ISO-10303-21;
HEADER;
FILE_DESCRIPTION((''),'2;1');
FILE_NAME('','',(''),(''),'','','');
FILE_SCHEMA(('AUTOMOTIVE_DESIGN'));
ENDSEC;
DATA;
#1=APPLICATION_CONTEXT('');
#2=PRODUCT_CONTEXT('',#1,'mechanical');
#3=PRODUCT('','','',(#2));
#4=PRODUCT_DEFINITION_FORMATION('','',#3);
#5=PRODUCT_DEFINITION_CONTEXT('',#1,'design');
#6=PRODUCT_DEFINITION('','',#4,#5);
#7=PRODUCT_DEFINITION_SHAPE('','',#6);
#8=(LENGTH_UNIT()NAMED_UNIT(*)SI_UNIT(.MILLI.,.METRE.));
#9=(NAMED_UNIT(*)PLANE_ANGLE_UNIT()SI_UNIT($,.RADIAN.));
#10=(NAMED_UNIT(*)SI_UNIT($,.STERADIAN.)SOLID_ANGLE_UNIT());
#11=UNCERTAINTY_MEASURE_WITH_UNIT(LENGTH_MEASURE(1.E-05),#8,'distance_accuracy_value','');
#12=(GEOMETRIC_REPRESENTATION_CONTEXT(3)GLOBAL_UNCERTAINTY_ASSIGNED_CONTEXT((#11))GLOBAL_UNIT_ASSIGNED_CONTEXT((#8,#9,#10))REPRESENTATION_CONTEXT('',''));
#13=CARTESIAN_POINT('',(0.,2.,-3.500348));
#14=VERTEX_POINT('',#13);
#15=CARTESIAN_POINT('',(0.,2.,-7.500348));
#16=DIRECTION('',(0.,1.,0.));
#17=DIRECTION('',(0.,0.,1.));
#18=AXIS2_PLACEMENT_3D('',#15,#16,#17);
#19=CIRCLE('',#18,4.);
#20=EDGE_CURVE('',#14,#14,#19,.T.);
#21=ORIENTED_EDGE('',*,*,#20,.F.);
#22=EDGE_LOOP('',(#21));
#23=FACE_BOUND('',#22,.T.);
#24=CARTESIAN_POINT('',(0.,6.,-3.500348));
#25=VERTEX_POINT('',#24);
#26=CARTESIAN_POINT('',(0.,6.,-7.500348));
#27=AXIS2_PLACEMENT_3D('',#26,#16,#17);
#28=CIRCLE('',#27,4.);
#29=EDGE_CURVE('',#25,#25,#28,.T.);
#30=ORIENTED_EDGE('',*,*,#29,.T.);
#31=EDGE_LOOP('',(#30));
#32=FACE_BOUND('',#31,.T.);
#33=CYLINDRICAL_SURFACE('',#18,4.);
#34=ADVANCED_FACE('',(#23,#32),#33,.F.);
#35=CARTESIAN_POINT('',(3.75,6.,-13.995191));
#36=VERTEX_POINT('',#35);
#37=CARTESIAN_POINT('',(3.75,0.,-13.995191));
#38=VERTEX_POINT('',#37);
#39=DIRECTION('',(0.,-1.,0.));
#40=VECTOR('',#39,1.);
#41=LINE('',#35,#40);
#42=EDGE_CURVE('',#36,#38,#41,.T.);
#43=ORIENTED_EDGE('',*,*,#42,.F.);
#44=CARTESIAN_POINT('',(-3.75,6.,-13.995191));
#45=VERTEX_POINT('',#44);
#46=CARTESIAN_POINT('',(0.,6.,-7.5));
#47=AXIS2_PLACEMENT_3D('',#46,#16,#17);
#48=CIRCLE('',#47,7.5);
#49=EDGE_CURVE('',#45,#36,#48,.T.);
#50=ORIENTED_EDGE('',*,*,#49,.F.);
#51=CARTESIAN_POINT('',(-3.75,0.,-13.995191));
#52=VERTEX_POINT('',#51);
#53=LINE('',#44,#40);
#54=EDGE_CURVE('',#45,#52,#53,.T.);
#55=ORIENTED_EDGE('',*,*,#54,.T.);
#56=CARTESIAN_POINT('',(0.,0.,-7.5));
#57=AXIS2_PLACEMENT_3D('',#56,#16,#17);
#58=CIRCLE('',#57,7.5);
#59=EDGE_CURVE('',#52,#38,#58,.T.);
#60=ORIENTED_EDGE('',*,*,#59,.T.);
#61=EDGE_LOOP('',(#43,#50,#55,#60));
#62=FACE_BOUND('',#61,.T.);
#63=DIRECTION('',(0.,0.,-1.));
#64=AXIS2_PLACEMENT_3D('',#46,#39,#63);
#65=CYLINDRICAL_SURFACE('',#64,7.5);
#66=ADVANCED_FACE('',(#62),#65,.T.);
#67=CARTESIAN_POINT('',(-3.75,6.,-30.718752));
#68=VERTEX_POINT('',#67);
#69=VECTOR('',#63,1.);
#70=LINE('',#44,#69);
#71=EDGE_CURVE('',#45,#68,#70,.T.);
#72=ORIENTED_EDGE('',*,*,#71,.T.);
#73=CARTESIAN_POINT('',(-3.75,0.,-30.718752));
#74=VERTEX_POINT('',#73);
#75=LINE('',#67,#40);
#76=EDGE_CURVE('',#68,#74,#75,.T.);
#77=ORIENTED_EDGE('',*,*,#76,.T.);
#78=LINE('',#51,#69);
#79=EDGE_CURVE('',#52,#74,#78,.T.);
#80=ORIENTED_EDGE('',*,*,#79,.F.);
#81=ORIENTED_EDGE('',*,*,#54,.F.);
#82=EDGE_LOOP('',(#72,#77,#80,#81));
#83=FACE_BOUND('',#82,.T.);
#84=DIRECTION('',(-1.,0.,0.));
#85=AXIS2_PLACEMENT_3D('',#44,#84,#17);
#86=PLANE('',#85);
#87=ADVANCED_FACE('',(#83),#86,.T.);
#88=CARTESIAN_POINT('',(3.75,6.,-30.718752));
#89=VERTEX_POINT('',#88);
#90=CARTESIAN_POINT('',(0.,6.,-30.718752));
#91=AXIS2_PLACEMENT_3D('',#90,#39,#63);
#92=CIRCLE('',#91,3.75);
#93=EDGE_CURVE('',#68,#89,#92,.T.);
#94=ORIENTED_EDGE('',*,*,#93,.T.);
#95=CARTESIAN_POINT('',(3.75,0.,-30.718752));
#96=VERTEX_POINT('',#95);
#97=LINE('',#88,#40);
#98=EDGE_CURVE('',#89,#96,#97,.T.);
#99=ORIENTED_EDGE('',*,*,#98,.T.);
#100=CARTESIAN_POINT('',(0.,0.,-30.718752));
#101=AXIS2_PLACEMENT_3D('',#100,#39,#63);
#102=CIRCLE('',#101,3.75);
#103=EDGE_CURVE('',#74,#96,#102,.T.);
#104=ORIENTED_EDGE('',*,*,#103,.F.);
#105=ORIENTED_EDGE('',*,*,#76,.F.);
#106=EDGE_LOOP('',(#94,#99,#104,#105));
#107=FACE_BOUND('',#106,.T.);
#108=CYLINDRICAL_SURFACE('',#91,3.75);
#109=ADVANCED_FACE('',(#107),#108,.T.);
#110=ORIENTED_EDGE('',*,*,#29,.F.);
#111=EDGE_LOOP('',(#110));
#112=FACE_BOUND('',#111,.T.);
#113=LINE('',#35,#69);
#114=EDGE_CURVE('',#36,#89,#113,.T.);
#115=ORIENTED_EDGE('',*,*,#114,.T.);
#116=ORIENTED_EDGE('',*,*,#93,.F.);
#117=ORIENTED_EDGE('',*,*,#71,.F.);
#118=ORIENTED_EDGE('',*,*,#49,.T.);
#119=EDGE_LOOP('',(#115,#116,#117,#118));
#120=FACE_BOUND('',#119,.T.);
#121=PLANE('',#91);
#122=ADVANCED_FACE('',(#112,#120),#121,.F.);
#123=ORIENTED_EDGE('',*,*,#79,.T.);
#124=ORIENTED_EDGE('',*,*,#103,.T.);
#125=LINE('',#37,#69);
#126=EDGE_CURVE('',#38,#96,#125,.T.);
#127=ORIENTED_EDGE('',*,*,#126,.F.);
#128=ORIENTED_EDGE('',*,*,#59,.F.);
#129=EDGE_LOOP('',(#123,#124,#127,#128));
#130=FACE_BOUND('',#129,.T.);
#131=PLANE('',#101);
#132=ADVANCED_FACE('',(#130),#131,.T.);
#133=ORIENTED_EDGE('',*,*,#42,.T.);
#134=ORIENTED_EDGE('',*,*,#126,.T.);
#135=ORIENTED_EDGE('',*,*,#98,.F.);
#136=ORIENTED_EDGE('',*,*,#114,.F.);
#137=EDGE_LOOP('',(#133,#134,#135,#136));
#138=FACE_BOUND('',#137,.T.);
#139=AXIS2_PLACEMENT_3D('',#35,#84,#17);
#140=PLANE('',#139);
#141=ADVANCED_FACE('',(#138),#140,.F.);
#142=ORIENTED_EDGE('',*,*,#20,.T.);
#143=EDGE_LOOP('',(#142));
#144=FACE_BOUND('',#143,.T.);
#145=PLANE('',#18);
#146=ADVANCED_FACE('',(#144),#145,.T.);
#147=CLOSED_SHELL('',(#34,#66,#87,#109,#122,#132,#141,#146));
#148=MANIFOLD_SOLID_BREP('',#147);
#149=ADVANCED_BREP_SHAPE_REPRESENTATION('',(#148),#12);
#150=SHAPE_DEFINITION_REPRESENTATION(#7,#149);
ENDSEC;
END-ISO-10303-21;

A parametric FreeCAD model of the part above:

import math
import FreeCAD as App
import Part
import Sketcher

doc = App.newDocument("Part")
body = doc.addObject("PartDesign::Body", "Body")

sketch1 = doc.addObject("Sketcher::SketchObject", "Sketch")
body.addObject(sketch1)
sketch1.AttachmentSupport = (doc.XZ_Plane, [""])
sketch1.MapMode = "FlatFace"
sketch1.addGeometry(Part.LineSegment(App.Vector(-3.8, -30.7, 0), App.Vector(-3.8, -14, 0)), False)
sketch1.addGeometry(Part.ArcOfCircle(Part.Circle(App.Vector(0, -7.5, 0), App.Vector(0, 0, 1), 7.5), math.radians(-60), math.radians(240)), False)
sketch1.addGeometry(Part.LineSegment(App.Vector(3.8, -14, 0), App.Vector(3.8, -30.7, 0)), False)
sketch1.addGeometry(Part.ArcOfCircle(Part.Circle(App.Vector(0, -30.7, 0), App.Vector(0, 0, 1), 3.8), math.radians(180), math.radians(360)), False)
sketch1.addConstraint(Sketcher.Constraint("Coincident", 0, 2, 1, 2))
sketch1.addConstraint(Sketcher.Constraint("Coincident", 1, 1, 2, 1))
sketch1.addConstraint(Sketcher.Constraint("Tangent", 2, 2, 3, 2))
sketch1.addConstraint(Sketcher.Constraint("Tangent", 3, 1, 0, 1))
sketch1.addConstraint(Sketcher.Constraint("Vertical", 0))
sketch1.addConstraint(Sketcher.Constraint("Vertical", 2))
sketch1.addConstraint(Sketcher.Constraint("Symmetric", 0, 2, 1, 1, -2))
sketch1.addConstraint(Sketcher.Constraint("Radius", 1, 7.5))
sketch1.addConstraint(Sketcher.Constraint("Radius", 3, 3.75))
sketch1.addConstraint(Sketcher.Constraint("DistanceY", 1, 3, -1, 1, 7.5))
sketch1.addConstraint(Sketcher.Constraint("DistanceY", 0, 1, 0, 2, 16.723562))
pad1 = doc.addObject("PartDesign::Pad", "Pad")
body.addObject(pad1)
pad1.Profile = sketch1
pad1.Length = 6
pad1.Reversed = True

sketch2 = doc.addObject("Sketcher::SketchObject", "Sketch001")
body.addObject(sketch2)
sketch2.AttachmentSupport = (doc.XZ_Plane, [""])
sketch2.MapMode = "FlatFace"
sketch2.AttachmentOffset = App.Placement(App.Vector(0, 0, -6), App.Rotation())
sketch2.addGeometry(Part.Circle(App.Vector(0, -7.5, 0), App.Vector(0, 0, 1), 4), False)
sketch2.addConstraint(Sketcher.Constraint("PointOnObject", 0, 3, -2))
sketch2.addConstraint(Sketcher.Constraint("Diameter", 0, 8.0))
sketch2.addConstraint(Sketcher.Constraint("DistanceY", 0, 3, -1, 1, 7.500348))
pocket1 = doc.addObject("PartDesign::Pocket", "Pocket")
body.addObject(pocket1)
pocket1.Profile = sketch2
pocket1.Length = 4
pocket1.Reversed = True

doc.recompute()
